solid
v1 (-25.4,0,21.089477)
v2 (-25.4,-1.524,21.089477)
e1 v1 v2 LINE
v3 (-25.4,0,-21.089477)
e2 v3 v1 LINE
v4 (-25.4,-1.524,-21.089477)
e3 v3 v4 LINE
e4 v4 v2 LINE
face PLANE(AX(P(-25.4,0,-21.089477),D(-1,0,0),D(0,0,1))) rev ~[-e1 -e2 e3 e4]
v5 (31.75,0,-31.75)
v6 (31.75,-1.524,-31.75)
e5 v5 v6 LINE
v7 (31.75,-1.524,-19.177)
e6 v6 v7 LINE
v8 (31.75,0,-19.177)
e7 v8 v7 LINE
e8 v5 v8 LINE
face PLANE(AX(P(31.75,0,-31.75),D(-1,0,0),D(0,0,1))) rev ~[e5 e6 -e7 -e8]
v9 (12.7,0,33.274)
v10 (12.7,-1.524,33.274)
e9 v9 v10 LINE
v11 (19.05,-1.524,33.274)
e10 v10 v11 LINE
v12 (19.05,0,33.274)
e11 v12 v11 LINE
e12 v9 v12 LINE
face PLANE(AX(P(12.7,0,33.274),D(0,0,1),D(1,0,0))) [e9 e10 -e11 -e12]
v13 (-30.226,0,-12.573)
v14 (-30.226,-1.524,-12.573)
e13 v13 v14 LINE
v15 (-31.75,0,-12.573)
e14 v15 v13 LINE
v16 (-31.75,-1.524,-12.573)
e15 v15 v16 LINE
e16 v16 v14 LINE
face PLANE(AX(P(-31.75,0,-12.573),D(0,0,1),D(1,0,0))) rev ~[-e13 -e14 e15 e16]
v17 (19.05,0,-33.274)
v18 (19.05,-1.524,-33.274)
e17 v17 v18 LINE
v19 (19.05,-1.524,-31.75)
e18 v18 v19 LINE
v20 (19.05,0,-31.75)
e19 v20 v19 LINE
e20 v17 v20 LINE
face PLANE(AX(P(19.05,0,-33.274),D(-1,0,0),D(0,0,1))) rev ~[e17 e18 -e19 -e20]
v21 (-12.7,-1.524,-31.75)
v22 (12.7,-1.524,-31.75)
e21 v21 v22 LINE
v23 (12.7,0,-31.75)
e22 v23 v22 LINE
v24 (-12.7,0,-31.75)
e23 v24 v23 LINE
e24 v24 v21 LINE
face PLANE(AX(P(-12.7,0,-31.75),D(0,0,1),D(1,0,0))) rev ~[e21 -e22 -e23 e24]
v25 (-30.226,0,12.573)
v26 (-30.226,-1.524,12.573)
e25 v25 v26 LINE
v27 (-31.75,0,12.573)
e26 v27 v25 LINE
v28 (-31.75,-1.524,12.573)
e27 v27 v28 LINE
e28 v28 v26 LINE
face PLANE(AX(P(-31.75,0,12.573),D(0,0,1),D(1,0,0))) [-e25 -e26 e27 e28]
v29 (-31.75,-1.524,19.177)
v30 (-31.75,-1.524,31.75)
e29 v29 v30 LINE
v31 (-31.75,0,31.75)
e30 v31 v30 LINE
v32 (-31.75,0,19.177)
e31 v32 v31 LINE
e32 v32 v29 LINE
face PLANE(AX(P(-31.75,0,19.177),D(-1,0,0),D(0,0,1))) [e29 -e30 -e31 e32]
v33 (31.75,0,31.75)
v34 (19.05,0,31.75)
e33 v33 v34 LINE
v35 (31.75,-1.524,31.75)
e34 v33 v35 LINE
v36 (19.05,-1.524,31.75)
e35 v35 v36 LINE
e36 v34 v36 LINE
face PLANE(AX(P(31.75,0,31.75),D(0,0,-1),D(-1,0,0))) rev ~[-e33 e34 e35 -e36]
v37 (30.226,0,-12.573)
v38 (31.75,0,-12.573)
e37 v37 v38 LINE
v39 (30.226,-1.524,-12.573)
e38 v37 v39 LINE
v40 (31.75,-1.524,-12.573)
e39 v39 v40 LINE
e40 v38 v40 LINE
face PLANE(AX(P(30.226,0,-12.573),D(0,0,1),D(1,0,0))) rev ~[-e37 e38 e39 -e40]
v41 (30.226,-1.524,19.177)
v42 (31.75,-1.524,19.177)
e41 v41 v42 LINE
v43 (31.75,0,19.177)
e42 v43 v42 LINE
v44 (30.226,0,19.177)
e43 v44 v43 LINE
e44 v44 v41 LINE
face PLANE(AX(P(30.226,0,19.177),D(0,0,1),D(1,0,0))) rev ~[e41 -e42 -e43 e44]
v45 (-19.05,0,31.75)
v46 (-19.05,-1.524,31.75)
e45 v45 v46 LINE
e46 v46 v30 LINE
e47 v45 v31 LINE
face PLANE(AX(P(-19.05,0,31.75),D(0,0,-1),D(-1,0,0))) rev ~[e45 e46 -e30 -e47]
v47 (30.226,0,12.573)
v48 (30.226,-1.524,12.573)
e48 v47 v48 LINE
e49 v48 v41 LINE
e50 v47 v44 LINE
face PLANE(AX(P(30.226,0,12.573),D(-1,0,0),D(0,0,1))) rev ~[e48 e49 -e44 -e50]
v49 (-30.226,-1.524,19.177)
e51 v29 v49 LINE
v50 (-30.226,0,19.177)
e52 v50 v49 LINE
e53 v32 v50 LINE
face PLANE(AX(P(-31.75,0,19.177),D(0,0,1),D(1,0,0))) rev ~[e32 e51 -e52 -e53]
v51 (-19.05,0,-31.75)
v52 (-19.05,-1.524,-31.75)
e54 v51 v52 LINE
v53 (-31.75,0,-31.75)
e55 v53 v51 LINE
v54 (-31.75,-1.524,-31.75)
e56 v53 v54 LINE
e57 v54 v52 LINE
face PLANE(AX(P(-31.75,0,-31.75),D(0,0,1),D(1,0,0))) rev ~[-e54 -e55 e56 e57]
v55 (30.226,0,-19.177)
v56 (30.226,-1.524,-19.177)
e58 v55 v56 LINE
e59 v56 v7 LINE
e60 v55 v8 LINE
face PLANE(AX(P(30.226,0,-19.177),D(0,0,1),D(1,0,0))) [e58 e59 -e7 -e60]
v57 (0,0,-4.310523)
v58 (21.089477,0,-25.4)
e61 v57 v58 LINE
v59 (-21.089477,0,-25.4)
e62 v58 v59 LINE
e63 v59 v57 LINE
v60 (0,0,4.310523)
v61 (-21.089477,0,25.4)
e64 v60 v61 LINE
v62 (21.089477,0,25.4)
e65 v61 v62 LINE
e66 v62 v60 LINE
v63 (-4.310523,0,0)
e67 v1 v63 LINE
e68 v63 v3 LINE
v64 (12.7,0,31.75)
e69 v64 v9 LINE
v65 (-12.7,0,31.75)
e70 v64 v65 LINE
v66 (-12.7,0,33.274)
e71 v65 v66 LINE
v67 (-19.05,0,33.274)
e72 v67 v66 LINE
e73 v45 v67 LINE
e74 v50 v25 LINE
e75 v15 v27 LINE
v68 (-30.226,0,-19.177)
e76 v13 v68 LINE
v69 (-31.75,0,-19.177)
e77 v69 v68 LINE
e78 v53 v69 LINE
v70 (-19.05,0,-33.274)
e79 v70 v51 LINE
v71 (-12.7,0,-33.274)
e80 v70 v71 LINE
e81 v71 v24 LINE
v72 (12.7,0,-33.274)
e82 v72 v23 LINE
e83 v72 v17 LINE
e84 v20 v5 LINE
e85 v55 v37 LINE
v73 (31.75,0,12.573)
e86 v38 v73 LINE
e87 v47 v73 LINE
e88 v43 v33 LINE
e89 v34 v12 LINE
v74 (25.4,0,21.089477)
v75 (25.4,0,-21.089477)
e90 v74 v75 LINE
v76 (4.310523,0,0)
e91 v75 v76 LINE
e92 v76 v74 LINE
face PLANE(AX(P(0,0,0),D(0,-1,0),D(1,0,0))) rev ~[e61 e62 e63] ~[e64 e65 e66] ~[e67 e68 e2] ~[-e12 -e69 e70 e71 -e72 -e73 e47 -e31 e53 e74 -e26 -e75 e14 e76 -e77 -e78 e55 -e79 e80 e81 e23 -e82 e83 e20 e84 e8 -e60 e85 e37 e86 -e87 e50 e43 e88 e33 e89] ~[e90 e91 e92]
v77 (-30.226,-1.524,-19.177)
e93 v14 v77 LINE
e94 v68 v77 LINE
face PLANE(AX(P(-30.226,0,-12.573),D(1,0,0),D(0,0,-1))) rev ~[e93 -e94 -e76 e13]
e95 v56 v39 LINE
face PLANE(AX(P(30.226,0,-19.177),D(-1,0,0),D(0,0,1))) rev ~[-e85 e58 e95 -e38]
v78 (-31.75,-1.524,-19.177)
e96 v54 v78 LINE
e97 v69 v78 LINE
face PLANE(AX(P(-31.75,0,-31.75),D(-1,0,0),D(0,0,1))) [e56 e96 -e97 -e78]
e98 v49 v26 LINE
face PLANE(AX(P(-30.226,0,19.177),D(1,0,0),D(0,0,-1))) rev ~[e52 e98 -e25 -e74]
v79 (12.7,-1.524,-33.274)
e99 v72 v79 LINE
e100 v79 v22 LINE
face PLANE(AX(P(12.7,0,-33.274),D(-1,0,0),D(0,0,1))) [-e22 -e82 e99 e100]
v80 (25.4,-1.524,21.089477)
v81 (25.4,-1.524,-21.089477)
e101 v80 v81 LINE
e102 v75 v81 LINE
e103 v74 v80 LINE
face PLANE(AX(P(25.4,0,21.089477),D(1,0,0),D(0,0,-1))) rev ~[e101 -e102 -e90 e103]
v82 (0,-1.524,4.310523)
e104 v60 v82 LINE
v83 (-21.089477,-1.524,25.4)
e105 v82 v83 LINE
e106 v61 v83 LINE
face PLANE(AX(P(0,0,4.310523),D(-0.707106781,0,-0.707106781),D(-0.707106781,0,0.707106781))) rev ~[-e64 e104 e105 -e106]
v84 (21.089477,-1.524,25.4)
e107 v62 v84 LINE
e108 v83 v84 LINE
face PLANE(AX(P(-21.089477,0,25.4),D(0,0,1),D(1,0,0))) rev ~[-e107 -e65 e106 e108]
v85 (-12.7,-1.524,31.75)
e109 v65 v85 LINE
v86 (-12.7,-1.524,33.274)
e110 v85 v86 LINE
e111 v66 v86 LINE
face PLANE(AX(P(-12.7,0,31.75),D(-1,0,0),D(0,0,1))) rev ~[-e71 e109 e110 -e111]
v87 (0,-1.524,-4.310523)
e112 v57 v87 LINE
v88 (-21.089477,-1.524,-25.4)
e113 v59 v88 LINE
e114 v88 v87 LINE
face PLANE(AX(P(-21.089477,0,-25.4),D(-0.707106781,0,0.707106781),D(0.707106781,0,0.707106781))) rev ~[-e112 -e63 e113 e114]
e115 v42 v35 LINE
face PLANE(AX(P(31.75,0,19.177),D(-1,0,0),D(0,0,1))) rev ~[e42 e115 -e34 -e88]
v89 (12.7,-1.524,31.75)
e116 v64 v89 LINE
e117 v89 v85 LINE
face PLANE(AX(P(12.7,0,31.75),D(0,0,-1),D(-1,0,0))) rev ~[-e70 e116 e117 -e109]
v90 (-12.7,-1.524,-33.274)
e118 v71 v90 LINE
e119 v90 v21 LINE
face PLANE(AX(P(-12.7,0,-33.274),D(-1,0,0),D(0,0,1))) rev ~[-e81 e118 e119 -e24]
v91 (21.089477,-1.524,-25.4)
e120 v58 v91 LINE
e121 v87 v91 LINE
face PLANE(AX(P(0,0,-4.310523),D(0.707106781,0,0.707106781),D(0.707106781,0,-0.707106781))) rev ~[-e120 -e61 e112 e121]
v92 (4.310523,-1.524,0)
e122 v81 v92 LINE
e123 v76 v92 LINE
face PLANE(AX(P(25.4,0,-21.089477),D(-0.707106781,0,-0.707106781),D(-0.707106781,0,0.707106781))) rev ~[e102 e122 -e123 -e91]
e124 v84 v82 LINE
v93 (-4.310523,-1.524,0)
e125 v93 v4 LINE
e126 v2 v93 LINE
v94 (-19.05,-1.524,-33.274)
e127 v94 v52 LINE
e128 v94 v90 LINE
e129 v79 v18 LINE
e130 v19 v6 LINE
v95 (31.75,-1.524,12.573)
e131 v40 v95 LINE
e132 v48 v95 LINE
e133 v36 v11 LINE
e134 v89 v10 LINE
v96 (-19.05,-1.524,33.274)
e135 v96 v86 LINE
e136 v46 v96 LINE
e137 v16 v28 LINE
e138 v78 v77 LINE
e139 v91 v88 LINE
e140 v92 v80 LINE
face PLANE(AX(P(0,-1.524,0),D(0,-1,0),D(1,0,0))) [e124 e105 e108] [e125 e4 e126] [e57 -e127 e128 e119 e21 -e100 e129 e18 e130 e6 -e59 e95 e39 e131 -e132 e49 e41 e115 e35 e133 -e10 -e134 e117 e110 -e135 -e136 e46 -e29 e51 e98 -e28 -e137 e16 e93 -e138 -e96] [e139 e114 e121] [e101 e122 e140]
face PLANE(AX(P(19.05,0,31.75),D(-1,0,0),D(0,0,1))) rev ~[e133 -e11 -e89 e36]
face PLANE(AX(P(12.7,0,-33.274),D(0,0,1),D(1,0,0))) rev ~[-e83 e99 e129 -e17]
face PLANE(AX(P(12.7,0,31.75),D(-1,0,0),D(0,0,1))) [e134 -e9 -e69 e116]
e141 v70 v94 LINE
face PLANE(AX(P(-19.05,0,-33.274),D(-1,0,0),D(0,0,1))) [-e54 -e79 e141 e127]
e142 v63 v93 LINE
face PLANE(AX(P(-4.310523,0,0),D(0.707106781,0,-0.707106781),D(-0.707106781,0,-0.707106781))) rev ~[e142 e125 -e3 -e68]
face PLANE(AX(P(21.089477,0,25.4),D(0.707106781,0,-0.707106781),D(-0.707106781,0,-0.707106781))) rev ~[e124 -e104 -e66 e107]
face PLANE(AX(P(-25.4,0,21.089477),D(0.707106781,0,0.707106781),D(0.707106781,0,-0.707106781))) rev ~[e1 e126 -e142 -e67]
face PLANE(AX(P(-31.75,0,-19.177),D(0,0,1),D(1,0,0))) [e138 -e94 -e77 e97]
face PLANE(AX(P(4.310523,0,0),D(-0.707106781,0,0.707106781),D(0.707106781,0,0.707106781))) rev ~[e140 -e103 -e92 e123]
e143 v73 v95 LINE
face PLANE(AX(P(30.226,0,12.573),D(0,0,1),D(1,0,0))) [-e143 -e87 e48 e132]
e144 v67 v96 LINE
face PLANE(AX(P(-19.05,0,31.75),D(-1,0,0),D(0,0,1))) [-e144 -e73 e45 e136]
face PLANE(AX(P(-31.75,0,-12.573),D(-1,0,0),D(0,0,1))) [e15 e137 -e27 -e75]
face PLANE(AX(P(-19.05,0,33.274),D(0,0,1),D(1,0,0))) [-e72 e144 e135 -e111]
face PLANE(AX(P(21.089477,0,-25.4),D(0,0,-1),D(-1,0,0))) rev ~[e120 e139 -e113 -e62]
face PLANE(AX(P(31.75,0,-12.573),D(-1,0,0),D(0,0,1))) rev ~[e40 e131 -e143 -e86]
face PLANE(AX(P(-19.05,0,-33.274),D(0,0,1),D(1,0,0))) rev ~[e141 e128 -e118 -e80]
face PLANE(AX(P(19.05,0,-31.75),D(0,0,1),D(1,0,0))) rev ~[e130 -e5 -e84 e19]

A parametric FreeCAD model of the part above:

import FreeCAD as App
import Part
import Sketcher
Q = App.Units.Quantity


def add_polygon(sketch, points):
    """Adds a closed chain of lines whose ends are joined by coincident constraints."""
    first, n = sketch.GeometryCount, len(points)
    for a, b in zip(points, points[1:] + points[:1]):
        sketch.addGeometry(Part.LineSegment(App.Vector(*a, 0), App.Vector(*b, 0)), False)
    for i in range(n):
        sketch.addConstraint(Sketcher.Constraint("Coincident", first + i, 2, first + (i + 1) % n, 1))

doc = App.newDocument("Part")
params = doc.addObject("Spreadsheet::Sheet", "Params")
for row, (alias, value) in enumerate([
    ("sketch1_width", "1 in"),
    ("sketch1_width2", "0.5 in"),
    ("sketch1_width3", "0.06 in"),
    ("sketch1_width4", "0.25 in"),
    ("sketch1_height", "0.26 in"),
    ("pad1_length", "0.06 in"),
], start=1):
    params.set(f"A{row}", alias)
    params.set(f"B{row}", "=" + value)
    params.setAlias(f"B{row}", alias)

body = doc.addObject("PartDesign::Body", "Body")

# Sketch on XZ plane
sketch1 = body.newObject("Sketcher::SketchObject", "Sketch")
sketch1.AttachmentSupport = (doc.getObject("XZ_Plane"), [""])
sketch1.MapMode = "FlatFace"
add_polygon(sketch1, [(-31.8, 31.8), (-31.8, 19.2), (-30.2, 19.2), (-30.2, 12.6), (-31.8, 12.6), (-31.8, -12.6), (-30.2, -12.6), (-30.2, -19.2), (-31.8, -19.2), (-31.8, -31.8), (-19.1, -31.8), (-19.1, -33.3), (-12.7, -33.3), (-12.7, -31.8), (12.7, -31.8), (12.7, -33.3), (19.1, -33.3), (19.1, -31.8), (31.8, -31.8), (31.8, -19.2), (30.2, -19.2), (30.2, -12.6), (31.8, -12.6), (31.8, 12.6), (30.2, 12.6), (30.2, 19.2), (31.8, 19.2), (31.8, 31.8), (19.1, 31.8), (19.1, 33.3), (12.7, 33.3), (12.7, 31.8), (-12.7, 31.8), (-12.7, 33.3), (-19.1, 33.3), (-19.1, 31.8)])  # lines 0-35
add_polygon(sketch1, [(-21.1, 25.4), (21.1, 25.4), (0, 4.3)])  # lines 36-38
add_polygon(sketch1, [(25.4, 21.1), (25.4, -21.1), (4.3, 0)])  # lines 39-41
add_polygon(sketch1, [(21.1, -25.4), (-21.1, -25.4), (0, -4.3)])  # lines 42-44
add_polygon(sketch1, [(-25.4, -21.1), (-25.4, 21.1), (-4.3, 0)])  # lines 45-47
sketch1.addConstraint([
    Sketcher.Constraint("Vertical", 0),
    Sketcher.Constraint("Horizontal", 1),
    Sketcher.Constraint("Vertical", 2),
    Sketcher.Constraint("Horizontal", 3),
    Sketcher.Constraint("Vertical", 4),
    Sketcher.Constraint("Horizontal", 5),
    Sketcher.Constraint("Vertical", 6),
    Sketcher.Constraint("Horizontal", 7),
    Sketcher.Constraint("Vertical", 8),
    Sketcher.Constraint("Horizontal", 9),
    Sketcher.Constraint("Vertical", 10),
    Sketcher.Constraint("Horizontal", 11),
    Sketcher.Constraint("Vertical", 12),
    Sketcher.Constraint("Horizontal", 13),
    Sketcher.Constraint("Vertical", 14),
    Sketcher.Constraint("Horizontal", 15),
    Sketcher.Constraint("Vertical", 16),
    Sketcher.Constraint("Horizontal", 17),
    Sketcher.Constraint("Vertical", 18),
    Sketcher.Constraint("Horizontal", 19),
    Sketcher.Constraint("Vertical", 20),
    Sketcher.Constraint("Horizontal", 21),
    Sketcher.Constraint("Vertical", 22),
    Sketcher.Constraint("Horizontal", 23),
    Sketcher.Constraint("Vertical", 24),
    Sketcher.Constraint("Horizontal", 25),
    Sketcher.Constraint("Vertical", 26),
    Sketcher.Constraint("Horizontal", 27),
    Sketcher.Constraint("Vertical", 28),
    Sketcher.Constraint("Horizontal", 29),
    Sketcher.Constraint("Vertical", 30),
    Sketcher.Constraint("Horizontal", 31),
    Sketcher.Constraint("Vertical", 32),
    Sketcher.Constraint("Horizontal", 33),
    Sketcher.Constraint("Vertical", 34),
    Sketcher.Constraint("Horizontal", 35),
    Sketcher.Constraint("Horizontal", 36),
    Sketcher.Constraint("Vertical", 39),
    Sketcher.Constraint("Horizontal", 42),
    Sketcher.Constraint("Vertical", 45),
    Sketcher.Constraint("Symmetric", 0, 2, 18, 2, -1, 1),
    Sketcher.Constraint("Symmetric", 2, 2, 20, 2, -1, 1),
    Sketcher.Constraint("Symmetric", 4, 2, 22, 2, -1, 1),
    Sketcher.Constraint("Symmetric", 6, 2, 24, 2, -1, 1),
    Sketcher.Constraint("Symmetric", 8, 2, 26, 2, -1, 1),
    Sketcher.Constraint("Symmetric", 10, 2, 28, 2, -1, 1),
    Sketcher.Constraint("Symmetric", 12, 2, 30, 2, -1, 1),
    Sketcher.Constraint("Symmetric", 14, 2, 32, 2, -1, 1),
    Sketcher.Constraint("Symmetric", 16, 2, 34, 2, -1, 1),
    Sketcher.Constraint("Symmetric", 36, 2, 42, 2, -1, 1),
    Sketcher.Constraint("Symmetric", 37, 2, 43, 2, -1, 1),
    Sketcher.Constraint("Symmetric", 39, 2, 45, 2, -1, 1),
    Sketcher.Constraint("Symmetric", 40, 2, 46, 2, -1, 1),
    Sketcher.Constraint("Symmetric", 11, 2, 14, 2, -2),
    Sketcher.Constraint("Symmetric", 9, 2, 16, 2, -2),
    Sketcher.Constraint("Symmetric", 7, 2, 18, 2, -2),
    Sketcher.Constraint("Symmetric", 5, 2, 20, 2, -2),
    Sketcher.Constraint("PointOnObject", 37, 2, -2),
    Sketcher.Constraint("PointOnObject", 40, 2, -1),
    Sketcher.Constraint("Perpendicular", 37, 38),
    Sketcher.Constraint("Parallel", 38, 40),
    Sketcher.Constraint("Perpendicular", 40, 41),
    Sketcher.Constraint("Perpendicular", 43, 44),
    Sketcher.Constraint("Perpendicular", 46, 47),
    Sketcher.Constraint("Horizontal", 9, 2, 12, 2),
    Sketcher.Constraint("Horizontal", 41, 2, 45, 2),
    Sketcher.Constraint("Vertical", 0, 2, 3, 2),
    Sketcher.Constraint("Equal", 25, 10),
    Sketcher.Constraint("Equal", 42, 39),
    Sketcher.Constraint("DistanceX", 13, 1, 13, 2, Q("1 in")),
    Sketcher.Constraint("DistanceX", 9, 1, 9, 2, Q("0.5 in")),
    Sketcher.Constraint("DistanceY", -1, 1, 36, 2, Q("1 in")),
    Sketcher.Constraint("DistanceX", -1, 1, 39, 2, Q("1 in")),
    Sketcher.Constraint("DistanceX", 1, 1, 1, 2, Q("0.06 in")),
    Sketcher.Constraint("DistanceX", 11, 1, 11, 2, Q("0.25 in")),
    Sketcher.Constraint("DistanceY", 2, 2, 2, 1, Q("0.26 in")),
    Sketcher.Constraint("DistanceY", 4, 2, 4, 1, Q("0.99 in")),
    Sketcher.Constraint("DistanceY", 0, 2, 0, 1, Q("0.495 in")),
    Sketcher.Constraint("DistanceX", 36, 1, 36, 2, 42.178954),
])
sketch1.setExpression("Constraints[117]", "Params.sketch1_width")
sketch1.setExpression("Constraints[118]", "Params.sketch1_width2")
sketch1.setExpression("Constraints[121]", "Params.sketch1_width3")
sketch1.setExpression("Constraints[122]", "Params.sketch1_width4")
sketch1.setExpression("Constraints[123]", "Params.sketch1_height")
pad1 = body.newObject("PartDesign::Pad", "Pad")
pad1.Profile = sketch1
pad1.setExpression("Length", "Params.pad1_length")

doc.recompute()
